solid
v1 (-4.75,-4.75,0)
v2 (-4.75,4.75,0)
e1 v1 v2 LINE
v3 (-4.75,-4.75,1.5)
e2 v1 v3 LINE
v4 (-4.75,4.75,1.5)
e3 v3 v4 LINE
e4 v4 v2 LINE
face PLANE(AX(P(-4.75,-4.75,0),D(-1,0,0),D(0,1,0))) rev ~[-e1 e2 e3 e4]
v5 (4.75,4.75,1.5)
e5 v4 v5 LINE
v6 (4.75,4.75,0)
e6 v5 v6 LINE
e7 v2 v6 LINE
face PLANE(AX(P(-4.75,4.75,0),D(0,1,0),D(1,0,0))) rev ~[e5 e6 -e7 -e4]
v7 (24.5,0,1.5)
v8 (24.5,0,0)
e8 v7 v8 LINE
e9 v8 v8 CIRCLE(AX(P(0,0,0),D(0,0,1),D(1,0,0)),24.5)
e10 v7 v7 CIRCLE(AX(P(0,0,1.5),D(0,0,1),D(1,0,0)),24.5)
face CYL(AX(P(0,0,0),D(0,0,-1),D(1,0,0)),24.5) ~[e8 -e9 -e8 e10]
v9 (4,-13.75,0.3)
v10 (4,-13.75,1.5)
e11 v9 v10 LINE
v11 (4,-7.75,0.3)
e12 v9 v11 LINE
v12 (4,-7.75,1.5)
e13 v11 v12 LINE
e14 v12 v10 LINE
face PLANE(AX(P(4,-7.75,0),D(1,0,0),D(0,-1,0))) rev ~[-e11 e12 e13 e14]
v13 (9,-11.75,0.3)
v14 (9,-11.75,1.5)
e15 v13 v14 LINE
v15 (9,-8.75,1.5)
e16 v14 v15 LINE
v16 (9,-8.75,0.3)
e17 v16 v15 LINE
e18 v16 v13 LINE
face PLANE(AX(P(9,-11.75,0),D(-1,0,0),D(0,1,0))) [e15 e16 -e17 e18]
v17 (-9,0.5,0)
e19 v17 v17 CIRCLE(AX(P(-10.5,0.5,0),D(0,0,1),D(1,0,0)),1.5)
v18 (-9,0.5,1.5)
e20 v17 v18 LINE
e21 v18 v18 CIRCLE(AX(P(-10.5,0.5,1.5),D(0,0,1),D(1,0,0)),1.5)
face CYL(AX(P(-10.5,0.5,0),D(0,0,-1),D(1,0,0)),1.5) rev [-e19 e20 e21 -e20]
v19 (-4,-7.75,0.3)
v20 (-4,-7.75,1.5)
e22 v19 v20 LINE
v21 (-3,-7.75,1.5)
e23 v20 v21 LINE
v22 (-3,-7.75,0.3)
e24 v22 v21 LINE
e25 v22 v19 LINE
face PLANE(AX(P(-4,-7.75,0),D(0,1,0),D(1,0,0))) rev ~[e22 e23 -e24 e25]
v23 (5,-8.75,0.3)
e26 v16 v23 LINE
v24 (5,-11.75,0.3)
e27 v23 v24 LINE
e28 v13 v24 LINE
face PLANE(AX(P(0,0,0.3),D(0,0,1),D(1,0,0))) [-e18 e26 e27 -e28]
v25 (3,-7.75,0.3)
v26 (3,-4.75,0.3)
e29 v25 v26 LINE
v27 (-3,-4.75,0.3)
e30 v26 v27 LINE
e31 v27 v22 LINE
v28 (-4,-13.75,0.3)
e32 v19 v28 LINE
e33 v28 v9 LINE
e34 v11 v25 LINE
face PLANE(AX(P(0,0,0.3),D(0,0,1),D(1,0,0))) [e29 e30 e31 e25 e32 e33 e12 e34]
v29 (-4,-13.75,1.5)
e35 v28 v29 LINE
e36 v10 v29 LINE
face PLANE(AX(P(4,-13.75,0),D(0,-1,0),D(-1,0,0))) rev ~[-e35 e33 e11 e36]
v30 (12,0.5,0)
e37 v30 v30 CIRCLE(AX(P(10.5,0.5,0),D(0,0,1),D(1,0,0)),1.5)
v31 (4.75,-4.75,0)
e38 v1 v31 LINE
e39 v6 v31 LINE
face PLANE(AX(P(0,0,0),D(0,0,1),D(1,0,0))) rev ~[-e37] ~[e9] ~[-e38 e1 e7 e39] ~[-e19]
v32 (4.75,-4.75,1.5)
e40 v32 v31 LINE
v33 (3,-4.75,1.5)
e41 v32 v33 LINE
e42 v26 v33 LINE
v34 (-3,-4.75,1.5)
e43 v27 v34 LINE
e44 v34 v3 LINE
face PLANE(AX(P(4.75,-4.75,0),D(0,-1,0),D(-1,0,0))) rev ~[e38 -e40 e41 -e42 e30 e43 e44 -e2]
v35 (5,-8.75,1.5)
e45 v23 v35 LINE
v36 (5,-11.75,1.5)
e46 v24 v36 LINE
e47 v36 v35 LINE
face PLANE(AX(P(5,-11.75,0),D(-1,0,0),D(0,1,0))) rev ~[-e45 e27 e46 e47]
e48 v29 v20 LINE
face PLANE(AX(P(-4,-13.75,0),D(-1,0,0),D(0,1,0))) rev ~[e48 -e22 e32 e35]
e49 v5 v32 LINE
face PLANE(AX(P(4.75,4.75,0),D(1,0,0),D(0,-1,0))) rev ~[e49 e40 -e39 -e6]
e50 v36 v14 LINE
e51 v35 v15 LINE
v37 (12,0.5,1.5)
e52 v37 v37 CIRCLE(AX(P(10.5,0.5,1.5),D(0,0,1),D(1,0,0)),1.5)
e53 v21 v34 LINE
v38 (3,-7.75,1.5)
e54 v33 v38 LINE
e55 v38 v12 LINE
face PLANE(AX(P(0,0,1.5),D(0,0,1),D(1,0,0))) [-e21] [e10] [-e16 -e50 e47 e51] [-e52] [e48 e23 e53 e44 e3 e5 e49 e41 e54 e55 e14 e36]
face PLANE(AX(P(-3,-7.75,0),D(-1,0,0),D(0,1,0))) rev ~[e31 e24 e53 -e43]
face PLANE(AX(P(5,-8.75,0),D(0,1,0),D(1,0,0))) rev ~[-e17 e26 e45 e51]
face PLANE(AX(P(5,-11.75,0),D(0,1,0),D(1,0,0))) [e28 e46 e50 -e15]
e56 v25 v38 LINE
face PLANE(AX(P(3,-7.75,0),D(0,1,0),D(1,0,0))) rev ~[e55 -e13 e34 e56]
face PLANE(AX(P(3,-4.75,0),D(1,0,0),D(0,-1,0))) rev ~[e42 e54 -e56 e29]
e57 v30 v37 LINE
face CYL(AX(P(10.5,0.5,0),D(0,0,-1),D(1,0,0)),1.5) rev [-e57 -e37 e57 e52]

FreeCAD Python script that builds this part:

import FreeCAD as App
import Part
import Sketcher
from FreeCAD import Vector
Q = App.Units.Quantity

doc = App.newDocument("Part")
body = doc.addObject("PartDesign::Body", "Body")

sketch1 = body.newObject("Sketcher::SketchObject", "Sketch")
sketch1.AttachmentSupport = (doc.getObject("XY_Plane"), [""])
sketch1.MapMode = "FlatFace"
sketch1.addGeometry([
    Part.Circle(Vector(0, 0, 0), Vector(0, 0, 1), 24.5),
    Part.Circle(Vector(-10.5, 0.5, 0), Vector(0, 0, 1), 1.5),
    Part.LineSegment(Vector(-4.8, -4.8, 0), Vector(-4.8, 4.8, 0)),
    Part.LineSegment(Vector(-4.8, 4.8, 0), Vector(4.8, 4.8, 0)),
    Part.LineSegment(Vector(4.8, 4.8, 0), Vector(4.8, -4.8, 0)),
    Part.LineSegment(Vector(4.8, -4.8, 0), Vector(-4.8, -4.8, 0)),
    Part.Circle(Vector(10.5, 0.5, 0), Vector(0, 0, 1), 1.5),
], False)
sketch1.addConstraint([
    Sketcher.Constraint("Coincident", 2, 2, 3, 1),
    Sketcher.Constraint("Coincident", 3, 2, 4, 1),
    Sketcher.Constraint("Coincident", 4, 2, 5, 1),
    Sketcher.Constraint("Coincident", 5, 2, 2, 1),
    Sketcher.Constraint("Vertical", 2),
    Sketcher.Constraint("Horizontal", 3),
    Sketcher.Constraint("Vertical", 4),
    Sketcher.Constraint("Horizontal", 5),
    Sketcher.Constraint("Coincident", 0, 3, -1, 1),
    Sketcher.Constraint("Equal", 1, 6),
    Sketcher.Constraint("Symmetric", 2, 2, 4, 2, -1, 1),
    Sketcher.Constraint("Symmetric", 1, 3, 6, 3, -2),
    Sketcher.Constraint("Equal", 5, 2),
    Sketcher.Constraint("Diameter", 0, Q("49 mm")),
    Sketcher.Constraint("Diameter", 1, Q("3 mm")),
    Sketcher.Constraint("DistanceX", 3, 1, 3, 2, Q("9.5 mm")),
    Sketcher.Constraint("DistanceX", 1, 3, 6, 3, Q("21 mm")),
    Sketcher.Constraint("DistanceY", -1, 1, 1, 3, Q("0.5 mm")),
])
pad1 = body.newObject("PartDesign::Pad", "Pad")
pad1.Profile = sketch1
pad1.Length = 0.3

sketch2 = body.newObject("Sketcher::SketchObject", "Sketch001")
sketch2.AttachmentSupport = (doc.getObject("XY_Plane"), [""])
sketch2.MapMode = "FlatFace"
sketch2.addGeometry([
    Part.Circle(Vector(0, 0, 0), Vector(0, 0, 1), 24.5),
    Part.LineSegment(Vector(9, -11.8, 0), Vector(5, -11.8, 0)),
    Part.LineSegment(Vector(5, -11.8, 0), Vector(5, -8.8, 0)),
    Part.LineSegment(Vector(5, -8.8, 0), Vector(9, -8.8, 0)),
    Part.LineSegment(Vector(9, -8.8, 0), Vector(9, -11.8, 0)),
    Part.Circle(Vector(-10.5, 0.5, 0), Vector(0, 0, 1), 1.5),
    Part.LineSegment(Vector(-3, -4.8, 0), Vector(-4.8, -4.8, 0)),
    Part.LineSegment(Vector(-4.8, -4.8, 0), Vector(-4.8, 4.8, 0)),
    Part.LineSegment(Vector(-4.8, 4.8, 0), Vector(4.8, 4.8, 0)),
    Part.LineSegment(Vector(4.8, 4.8, 0), Vector(4.8, -4.8, 0)),
    Part.LineSegment(Vector(4.8, -4.8, 0), Vector(3, -4.8, 0)),
    Part.LineSegment(Vector(3, -4.8, 0), Vector(3, -7.8, 0)),
    Part.LineSegment(Vector(3, -7.8, 0), Vector(4, -7.8, 0)),
    Part.LineSegment(Vector(4, -7.8, 0), Vector(4, -13.8, 0)),
    Part.LineSegment(Vector(4, -13.8, 0), Vector(-4, -13.8, 0)),
    Part.LineSegment(Vector(-4, -13.8, 0), Vector(-4, -7.8, 0)),
    Part.LineSegment(Vector(-4, -7.8, 0), Vector(-3, -7.8, 0)),
    Part.LineSegment(Vector(-3, -7.8, 0), Vector(-3, -4.8, 0)),
    Part.Circle(Vector(10.5, 0.5, 0), Vector(0, 0, 1), 1.5),
], False)
sketch2.addConstraint([
    Sketcher.Constraint("Coincident", 1, 2, 2, 1),
    Sketcher.Constraint("Coincident", 2, 2, 3, 1),
    Sketcher.Constraint("Coincident", 3, 2, 4, 1),
    Sketcher.Constraint("Coincident", 4, 2, 1, 1),
    Sketcher.Constraint("Coincident", 6, 2, 7, 1),
    Sketcher.Constraint("Coincident", 7, 2, 8, 1),
    Sketcher.Constraint("Coincident", 8, 2, 9, 1),
    Sketcher.Constraint("Coincident", 9, 2, 10, 1),
    Sketcher.Constraint("Coincident", 10, 2, 11, 1),
    Sketcher.Constraint("Coincident", 11, 2, 12, 1),
    Sketcher.Constraint("Coincident", 12, 2, 13, 1),
    Sketcher.Constraint("Coincident", 13, 2, 14, 1),
    Sketcher.Constraint("Coincident", 14, 2, 15, 1),
    Sketcher.Constraint("Coincident", 15, 2, 16, 1),
    Sketcher.Constraint("Coincident", 16, 2, 17, 1),
    Sketcher.Constraint("Coincident", 17, 2, 6, 1),
    Sketcher.Constraint("Horizontal", 1),
    Sketcher.Constraint("Vertical", 2),
    Sketcher.Constraint("Horizontal", 3),
    Sketcher.Constraint("Vertical", 4),
    Sketcher.Constraint("Horizontal", 6),
    Sketcher.Constraint("Vertical", 7),
    Sketcher.Constraint("Horizontal", 8),
    Sketcher.Constraint("Vertical", 9),
    Sketcher.Constraint("Horizontal", 10),
    Sketcher.Constraint("Vertical", 11),
    Sketcher.Constraint("Horizontal", 12),
    Sketcher.Constraint("Vertical", 13),
    Sketcher.Constraint("Horizontal", 14),
    Sketcher.Constraint("Vertical", 15),
    Sketcher.Constraint("Horizontal", 16),
    Sketcher.Constraint("Vertical", 17),
    Sketcher.Constraint("Coincident", 0, 3, -1, 1),
    Sketcher.Constraint("Equal", 5, 18),
    Sketcher.Constraint("Symmetric", 6, 2, 8, 2, -1, 1),
    Sketcher.Constraint("Symmetric", 5, 3, 18, 3, -2),
    Sketcher.Constraint("Symmetric", 12, 2, 15, 2, -2),
    Sketcher.Constraint("Symmetric", 10, 2, 17, 2, -2),
    Sketcher.Constraint("Equal", 8, 7),
    Sketcher.Constraint("Equal", 4, 11),
    Sketcher.Constraint("Diameter", 0, Q("49 mm")),
    Sketcher.Constraint("Diameter", 5, Q("3 mm")),
    Sketcher.Constraint("DistanceX", 1, 2, 1, 1, Q("4 mm")),
    Sketcher.Constraint("DistanceX", 12, 1, 12, 2, Q("1 mm")),
    Sketcher.Constraint("DistanceX", 14, 2, 14, 1, Q("8 mm")),
    Sketcher.Constraint("DistanceY", 2, 1, 2, 2, Q("3 mm")),
    Sketcher.Constraint("DistanceY", 13, 2, 13, 1, Q("6 mm")),
    Sketcher.Constraint("DistanceX", 8, 1, 8, 2, Q("9.5 mm")),
    Sketcher.Constraint("DistanceX", -1, 1, 1, 2, Q("5 mm")),
    Sketcher.Constraint("DistanceX", 5, 3, 18, 3, Q("21 mm")),
    Sketcher.Constraint("DistanceY", 2, 2, 6, 2, Q("4 mm")),
    Sketcher.Constraint("DistanceY", -1, 1, 5, 3, Q("0.5 mm")),
])
pad2 = body.newObject("PartDesign::Pad", "Pad001")
pad2.Profile = sketch2
pad2.Length = 1.5

doc.recompute()
